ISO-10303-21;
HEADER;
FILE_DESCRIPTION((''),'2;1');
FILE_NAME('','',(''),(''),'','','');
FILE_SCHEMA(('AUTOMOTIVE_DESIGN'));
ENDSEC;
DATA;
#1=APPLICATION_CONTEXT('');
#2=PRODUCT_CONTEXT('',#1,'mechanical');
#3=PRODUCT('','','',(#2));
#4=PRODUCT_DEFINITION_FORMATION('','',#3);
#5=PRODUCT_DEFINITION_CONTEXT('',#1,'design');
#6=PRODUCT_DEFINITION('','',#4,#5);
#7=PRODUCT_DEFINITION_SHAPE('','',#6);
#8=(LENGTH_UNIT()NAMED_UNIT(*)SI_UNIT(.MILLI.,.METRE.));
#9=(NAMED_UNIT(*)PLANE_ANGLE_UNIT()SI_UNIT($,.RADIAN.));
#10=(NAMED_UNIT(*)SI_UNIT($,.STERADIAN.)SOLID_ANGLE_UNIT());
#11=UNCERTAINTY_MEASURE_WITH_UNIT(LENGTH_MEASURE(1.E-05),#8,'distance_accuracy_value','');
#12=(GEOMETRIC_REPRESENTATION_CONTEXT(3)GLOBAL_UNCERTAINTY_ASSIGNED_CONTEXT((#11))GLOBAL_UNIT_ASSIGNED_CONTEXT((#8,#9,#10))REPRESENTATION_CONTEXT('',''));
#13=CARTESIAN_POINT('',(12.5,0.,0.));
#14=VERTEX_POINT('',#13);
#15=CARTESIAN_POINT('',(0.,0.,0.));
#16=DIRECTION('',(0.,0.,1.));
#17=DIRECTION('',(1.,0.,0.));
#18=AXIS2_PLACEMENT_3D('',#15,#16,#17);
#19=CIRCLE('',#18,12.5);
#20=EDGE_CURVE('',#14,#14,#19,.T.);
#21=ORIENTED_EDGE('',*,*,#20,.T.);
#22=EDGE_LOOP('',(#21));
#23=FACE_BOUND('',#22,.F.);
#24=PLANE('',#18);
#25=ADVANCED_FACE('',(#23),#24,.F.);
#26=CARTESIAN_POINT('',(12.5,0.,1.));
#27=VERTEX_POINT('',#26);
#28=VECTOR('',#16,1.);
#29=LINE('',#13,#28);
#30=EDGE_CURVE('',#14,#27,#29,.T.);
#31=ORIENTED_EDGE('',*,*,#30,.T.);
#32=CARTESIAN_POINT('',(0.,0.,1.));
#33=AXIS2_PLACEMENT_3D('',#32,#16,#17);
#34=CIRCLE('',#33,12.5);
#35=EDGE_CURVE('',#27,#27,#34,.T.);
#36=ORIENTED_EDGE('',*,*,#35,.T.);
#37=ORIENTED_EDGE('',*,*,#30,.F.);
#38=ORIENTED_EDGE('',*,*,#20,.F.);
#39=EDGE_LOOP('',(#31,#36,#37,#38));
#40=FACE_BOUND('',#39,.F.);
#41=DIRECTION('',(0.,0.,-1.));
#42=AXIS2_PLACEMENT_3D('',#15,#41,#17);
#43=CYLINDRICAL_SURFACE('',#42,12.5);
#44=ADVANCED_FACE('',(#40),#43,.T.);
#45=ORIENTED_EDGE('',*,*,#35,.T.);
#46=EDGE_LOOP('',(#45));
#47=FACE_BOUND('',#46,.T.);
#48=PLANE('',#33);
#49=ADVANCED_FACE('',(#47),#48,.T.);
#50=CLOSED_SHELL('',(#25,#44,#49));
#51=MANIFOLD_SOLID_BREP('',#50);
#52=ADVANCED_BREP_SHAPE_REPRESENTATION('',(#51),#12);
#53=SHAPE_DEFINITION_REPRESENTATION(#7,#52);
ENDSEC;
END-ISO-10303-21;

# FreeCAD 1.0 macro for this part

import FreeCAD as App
import Part
import Sketcher
Q = App.Units.Quantity

doc = App.newDocument("Part")
params = doc.addObject("Spreadsheet::Sheet", "Params")
for row, (alias, value) in enumerate([
    ("sketch1_diameter", "25 mm"),
    ("pad1_length", "1 mm"),
], start=1):
    params.set(f"A{row}", alias)
    params.set(f"B{row}", "=" + value)
    params.setAlias(f"B{row}", alias)

body = doc.addObject("PartDesign::Body", "Body")

sketch1 = body.newObject("Sketcher::SketchObject", "Sketch")
sketch1.AttachmentSupport = (doc.getObject("XY_Plane"), [""])
sketch1.MapMode = "FlatFace"
sketch1.addGeometry(Part.Circle(App.Vector(0, 0, 0), App.Vector(0, 0, 1), 12), False)
sketch1.addConstraint([
    Sketcher.Constraint("Coincident", 0, 3, -1, 1),
    Sketcher.Constraint("Diameter", 0, Q("25 mm")),
])
sketch1.setExpression("Constraints[1]", "Params.sketch1_diameter")
pad1 = body.newObject("PartDesign::Pad", "Pad")
pad1.Profile = sketch1
pad1.setExpression("Length", "Params.pad1_length")

doc.recompute()
